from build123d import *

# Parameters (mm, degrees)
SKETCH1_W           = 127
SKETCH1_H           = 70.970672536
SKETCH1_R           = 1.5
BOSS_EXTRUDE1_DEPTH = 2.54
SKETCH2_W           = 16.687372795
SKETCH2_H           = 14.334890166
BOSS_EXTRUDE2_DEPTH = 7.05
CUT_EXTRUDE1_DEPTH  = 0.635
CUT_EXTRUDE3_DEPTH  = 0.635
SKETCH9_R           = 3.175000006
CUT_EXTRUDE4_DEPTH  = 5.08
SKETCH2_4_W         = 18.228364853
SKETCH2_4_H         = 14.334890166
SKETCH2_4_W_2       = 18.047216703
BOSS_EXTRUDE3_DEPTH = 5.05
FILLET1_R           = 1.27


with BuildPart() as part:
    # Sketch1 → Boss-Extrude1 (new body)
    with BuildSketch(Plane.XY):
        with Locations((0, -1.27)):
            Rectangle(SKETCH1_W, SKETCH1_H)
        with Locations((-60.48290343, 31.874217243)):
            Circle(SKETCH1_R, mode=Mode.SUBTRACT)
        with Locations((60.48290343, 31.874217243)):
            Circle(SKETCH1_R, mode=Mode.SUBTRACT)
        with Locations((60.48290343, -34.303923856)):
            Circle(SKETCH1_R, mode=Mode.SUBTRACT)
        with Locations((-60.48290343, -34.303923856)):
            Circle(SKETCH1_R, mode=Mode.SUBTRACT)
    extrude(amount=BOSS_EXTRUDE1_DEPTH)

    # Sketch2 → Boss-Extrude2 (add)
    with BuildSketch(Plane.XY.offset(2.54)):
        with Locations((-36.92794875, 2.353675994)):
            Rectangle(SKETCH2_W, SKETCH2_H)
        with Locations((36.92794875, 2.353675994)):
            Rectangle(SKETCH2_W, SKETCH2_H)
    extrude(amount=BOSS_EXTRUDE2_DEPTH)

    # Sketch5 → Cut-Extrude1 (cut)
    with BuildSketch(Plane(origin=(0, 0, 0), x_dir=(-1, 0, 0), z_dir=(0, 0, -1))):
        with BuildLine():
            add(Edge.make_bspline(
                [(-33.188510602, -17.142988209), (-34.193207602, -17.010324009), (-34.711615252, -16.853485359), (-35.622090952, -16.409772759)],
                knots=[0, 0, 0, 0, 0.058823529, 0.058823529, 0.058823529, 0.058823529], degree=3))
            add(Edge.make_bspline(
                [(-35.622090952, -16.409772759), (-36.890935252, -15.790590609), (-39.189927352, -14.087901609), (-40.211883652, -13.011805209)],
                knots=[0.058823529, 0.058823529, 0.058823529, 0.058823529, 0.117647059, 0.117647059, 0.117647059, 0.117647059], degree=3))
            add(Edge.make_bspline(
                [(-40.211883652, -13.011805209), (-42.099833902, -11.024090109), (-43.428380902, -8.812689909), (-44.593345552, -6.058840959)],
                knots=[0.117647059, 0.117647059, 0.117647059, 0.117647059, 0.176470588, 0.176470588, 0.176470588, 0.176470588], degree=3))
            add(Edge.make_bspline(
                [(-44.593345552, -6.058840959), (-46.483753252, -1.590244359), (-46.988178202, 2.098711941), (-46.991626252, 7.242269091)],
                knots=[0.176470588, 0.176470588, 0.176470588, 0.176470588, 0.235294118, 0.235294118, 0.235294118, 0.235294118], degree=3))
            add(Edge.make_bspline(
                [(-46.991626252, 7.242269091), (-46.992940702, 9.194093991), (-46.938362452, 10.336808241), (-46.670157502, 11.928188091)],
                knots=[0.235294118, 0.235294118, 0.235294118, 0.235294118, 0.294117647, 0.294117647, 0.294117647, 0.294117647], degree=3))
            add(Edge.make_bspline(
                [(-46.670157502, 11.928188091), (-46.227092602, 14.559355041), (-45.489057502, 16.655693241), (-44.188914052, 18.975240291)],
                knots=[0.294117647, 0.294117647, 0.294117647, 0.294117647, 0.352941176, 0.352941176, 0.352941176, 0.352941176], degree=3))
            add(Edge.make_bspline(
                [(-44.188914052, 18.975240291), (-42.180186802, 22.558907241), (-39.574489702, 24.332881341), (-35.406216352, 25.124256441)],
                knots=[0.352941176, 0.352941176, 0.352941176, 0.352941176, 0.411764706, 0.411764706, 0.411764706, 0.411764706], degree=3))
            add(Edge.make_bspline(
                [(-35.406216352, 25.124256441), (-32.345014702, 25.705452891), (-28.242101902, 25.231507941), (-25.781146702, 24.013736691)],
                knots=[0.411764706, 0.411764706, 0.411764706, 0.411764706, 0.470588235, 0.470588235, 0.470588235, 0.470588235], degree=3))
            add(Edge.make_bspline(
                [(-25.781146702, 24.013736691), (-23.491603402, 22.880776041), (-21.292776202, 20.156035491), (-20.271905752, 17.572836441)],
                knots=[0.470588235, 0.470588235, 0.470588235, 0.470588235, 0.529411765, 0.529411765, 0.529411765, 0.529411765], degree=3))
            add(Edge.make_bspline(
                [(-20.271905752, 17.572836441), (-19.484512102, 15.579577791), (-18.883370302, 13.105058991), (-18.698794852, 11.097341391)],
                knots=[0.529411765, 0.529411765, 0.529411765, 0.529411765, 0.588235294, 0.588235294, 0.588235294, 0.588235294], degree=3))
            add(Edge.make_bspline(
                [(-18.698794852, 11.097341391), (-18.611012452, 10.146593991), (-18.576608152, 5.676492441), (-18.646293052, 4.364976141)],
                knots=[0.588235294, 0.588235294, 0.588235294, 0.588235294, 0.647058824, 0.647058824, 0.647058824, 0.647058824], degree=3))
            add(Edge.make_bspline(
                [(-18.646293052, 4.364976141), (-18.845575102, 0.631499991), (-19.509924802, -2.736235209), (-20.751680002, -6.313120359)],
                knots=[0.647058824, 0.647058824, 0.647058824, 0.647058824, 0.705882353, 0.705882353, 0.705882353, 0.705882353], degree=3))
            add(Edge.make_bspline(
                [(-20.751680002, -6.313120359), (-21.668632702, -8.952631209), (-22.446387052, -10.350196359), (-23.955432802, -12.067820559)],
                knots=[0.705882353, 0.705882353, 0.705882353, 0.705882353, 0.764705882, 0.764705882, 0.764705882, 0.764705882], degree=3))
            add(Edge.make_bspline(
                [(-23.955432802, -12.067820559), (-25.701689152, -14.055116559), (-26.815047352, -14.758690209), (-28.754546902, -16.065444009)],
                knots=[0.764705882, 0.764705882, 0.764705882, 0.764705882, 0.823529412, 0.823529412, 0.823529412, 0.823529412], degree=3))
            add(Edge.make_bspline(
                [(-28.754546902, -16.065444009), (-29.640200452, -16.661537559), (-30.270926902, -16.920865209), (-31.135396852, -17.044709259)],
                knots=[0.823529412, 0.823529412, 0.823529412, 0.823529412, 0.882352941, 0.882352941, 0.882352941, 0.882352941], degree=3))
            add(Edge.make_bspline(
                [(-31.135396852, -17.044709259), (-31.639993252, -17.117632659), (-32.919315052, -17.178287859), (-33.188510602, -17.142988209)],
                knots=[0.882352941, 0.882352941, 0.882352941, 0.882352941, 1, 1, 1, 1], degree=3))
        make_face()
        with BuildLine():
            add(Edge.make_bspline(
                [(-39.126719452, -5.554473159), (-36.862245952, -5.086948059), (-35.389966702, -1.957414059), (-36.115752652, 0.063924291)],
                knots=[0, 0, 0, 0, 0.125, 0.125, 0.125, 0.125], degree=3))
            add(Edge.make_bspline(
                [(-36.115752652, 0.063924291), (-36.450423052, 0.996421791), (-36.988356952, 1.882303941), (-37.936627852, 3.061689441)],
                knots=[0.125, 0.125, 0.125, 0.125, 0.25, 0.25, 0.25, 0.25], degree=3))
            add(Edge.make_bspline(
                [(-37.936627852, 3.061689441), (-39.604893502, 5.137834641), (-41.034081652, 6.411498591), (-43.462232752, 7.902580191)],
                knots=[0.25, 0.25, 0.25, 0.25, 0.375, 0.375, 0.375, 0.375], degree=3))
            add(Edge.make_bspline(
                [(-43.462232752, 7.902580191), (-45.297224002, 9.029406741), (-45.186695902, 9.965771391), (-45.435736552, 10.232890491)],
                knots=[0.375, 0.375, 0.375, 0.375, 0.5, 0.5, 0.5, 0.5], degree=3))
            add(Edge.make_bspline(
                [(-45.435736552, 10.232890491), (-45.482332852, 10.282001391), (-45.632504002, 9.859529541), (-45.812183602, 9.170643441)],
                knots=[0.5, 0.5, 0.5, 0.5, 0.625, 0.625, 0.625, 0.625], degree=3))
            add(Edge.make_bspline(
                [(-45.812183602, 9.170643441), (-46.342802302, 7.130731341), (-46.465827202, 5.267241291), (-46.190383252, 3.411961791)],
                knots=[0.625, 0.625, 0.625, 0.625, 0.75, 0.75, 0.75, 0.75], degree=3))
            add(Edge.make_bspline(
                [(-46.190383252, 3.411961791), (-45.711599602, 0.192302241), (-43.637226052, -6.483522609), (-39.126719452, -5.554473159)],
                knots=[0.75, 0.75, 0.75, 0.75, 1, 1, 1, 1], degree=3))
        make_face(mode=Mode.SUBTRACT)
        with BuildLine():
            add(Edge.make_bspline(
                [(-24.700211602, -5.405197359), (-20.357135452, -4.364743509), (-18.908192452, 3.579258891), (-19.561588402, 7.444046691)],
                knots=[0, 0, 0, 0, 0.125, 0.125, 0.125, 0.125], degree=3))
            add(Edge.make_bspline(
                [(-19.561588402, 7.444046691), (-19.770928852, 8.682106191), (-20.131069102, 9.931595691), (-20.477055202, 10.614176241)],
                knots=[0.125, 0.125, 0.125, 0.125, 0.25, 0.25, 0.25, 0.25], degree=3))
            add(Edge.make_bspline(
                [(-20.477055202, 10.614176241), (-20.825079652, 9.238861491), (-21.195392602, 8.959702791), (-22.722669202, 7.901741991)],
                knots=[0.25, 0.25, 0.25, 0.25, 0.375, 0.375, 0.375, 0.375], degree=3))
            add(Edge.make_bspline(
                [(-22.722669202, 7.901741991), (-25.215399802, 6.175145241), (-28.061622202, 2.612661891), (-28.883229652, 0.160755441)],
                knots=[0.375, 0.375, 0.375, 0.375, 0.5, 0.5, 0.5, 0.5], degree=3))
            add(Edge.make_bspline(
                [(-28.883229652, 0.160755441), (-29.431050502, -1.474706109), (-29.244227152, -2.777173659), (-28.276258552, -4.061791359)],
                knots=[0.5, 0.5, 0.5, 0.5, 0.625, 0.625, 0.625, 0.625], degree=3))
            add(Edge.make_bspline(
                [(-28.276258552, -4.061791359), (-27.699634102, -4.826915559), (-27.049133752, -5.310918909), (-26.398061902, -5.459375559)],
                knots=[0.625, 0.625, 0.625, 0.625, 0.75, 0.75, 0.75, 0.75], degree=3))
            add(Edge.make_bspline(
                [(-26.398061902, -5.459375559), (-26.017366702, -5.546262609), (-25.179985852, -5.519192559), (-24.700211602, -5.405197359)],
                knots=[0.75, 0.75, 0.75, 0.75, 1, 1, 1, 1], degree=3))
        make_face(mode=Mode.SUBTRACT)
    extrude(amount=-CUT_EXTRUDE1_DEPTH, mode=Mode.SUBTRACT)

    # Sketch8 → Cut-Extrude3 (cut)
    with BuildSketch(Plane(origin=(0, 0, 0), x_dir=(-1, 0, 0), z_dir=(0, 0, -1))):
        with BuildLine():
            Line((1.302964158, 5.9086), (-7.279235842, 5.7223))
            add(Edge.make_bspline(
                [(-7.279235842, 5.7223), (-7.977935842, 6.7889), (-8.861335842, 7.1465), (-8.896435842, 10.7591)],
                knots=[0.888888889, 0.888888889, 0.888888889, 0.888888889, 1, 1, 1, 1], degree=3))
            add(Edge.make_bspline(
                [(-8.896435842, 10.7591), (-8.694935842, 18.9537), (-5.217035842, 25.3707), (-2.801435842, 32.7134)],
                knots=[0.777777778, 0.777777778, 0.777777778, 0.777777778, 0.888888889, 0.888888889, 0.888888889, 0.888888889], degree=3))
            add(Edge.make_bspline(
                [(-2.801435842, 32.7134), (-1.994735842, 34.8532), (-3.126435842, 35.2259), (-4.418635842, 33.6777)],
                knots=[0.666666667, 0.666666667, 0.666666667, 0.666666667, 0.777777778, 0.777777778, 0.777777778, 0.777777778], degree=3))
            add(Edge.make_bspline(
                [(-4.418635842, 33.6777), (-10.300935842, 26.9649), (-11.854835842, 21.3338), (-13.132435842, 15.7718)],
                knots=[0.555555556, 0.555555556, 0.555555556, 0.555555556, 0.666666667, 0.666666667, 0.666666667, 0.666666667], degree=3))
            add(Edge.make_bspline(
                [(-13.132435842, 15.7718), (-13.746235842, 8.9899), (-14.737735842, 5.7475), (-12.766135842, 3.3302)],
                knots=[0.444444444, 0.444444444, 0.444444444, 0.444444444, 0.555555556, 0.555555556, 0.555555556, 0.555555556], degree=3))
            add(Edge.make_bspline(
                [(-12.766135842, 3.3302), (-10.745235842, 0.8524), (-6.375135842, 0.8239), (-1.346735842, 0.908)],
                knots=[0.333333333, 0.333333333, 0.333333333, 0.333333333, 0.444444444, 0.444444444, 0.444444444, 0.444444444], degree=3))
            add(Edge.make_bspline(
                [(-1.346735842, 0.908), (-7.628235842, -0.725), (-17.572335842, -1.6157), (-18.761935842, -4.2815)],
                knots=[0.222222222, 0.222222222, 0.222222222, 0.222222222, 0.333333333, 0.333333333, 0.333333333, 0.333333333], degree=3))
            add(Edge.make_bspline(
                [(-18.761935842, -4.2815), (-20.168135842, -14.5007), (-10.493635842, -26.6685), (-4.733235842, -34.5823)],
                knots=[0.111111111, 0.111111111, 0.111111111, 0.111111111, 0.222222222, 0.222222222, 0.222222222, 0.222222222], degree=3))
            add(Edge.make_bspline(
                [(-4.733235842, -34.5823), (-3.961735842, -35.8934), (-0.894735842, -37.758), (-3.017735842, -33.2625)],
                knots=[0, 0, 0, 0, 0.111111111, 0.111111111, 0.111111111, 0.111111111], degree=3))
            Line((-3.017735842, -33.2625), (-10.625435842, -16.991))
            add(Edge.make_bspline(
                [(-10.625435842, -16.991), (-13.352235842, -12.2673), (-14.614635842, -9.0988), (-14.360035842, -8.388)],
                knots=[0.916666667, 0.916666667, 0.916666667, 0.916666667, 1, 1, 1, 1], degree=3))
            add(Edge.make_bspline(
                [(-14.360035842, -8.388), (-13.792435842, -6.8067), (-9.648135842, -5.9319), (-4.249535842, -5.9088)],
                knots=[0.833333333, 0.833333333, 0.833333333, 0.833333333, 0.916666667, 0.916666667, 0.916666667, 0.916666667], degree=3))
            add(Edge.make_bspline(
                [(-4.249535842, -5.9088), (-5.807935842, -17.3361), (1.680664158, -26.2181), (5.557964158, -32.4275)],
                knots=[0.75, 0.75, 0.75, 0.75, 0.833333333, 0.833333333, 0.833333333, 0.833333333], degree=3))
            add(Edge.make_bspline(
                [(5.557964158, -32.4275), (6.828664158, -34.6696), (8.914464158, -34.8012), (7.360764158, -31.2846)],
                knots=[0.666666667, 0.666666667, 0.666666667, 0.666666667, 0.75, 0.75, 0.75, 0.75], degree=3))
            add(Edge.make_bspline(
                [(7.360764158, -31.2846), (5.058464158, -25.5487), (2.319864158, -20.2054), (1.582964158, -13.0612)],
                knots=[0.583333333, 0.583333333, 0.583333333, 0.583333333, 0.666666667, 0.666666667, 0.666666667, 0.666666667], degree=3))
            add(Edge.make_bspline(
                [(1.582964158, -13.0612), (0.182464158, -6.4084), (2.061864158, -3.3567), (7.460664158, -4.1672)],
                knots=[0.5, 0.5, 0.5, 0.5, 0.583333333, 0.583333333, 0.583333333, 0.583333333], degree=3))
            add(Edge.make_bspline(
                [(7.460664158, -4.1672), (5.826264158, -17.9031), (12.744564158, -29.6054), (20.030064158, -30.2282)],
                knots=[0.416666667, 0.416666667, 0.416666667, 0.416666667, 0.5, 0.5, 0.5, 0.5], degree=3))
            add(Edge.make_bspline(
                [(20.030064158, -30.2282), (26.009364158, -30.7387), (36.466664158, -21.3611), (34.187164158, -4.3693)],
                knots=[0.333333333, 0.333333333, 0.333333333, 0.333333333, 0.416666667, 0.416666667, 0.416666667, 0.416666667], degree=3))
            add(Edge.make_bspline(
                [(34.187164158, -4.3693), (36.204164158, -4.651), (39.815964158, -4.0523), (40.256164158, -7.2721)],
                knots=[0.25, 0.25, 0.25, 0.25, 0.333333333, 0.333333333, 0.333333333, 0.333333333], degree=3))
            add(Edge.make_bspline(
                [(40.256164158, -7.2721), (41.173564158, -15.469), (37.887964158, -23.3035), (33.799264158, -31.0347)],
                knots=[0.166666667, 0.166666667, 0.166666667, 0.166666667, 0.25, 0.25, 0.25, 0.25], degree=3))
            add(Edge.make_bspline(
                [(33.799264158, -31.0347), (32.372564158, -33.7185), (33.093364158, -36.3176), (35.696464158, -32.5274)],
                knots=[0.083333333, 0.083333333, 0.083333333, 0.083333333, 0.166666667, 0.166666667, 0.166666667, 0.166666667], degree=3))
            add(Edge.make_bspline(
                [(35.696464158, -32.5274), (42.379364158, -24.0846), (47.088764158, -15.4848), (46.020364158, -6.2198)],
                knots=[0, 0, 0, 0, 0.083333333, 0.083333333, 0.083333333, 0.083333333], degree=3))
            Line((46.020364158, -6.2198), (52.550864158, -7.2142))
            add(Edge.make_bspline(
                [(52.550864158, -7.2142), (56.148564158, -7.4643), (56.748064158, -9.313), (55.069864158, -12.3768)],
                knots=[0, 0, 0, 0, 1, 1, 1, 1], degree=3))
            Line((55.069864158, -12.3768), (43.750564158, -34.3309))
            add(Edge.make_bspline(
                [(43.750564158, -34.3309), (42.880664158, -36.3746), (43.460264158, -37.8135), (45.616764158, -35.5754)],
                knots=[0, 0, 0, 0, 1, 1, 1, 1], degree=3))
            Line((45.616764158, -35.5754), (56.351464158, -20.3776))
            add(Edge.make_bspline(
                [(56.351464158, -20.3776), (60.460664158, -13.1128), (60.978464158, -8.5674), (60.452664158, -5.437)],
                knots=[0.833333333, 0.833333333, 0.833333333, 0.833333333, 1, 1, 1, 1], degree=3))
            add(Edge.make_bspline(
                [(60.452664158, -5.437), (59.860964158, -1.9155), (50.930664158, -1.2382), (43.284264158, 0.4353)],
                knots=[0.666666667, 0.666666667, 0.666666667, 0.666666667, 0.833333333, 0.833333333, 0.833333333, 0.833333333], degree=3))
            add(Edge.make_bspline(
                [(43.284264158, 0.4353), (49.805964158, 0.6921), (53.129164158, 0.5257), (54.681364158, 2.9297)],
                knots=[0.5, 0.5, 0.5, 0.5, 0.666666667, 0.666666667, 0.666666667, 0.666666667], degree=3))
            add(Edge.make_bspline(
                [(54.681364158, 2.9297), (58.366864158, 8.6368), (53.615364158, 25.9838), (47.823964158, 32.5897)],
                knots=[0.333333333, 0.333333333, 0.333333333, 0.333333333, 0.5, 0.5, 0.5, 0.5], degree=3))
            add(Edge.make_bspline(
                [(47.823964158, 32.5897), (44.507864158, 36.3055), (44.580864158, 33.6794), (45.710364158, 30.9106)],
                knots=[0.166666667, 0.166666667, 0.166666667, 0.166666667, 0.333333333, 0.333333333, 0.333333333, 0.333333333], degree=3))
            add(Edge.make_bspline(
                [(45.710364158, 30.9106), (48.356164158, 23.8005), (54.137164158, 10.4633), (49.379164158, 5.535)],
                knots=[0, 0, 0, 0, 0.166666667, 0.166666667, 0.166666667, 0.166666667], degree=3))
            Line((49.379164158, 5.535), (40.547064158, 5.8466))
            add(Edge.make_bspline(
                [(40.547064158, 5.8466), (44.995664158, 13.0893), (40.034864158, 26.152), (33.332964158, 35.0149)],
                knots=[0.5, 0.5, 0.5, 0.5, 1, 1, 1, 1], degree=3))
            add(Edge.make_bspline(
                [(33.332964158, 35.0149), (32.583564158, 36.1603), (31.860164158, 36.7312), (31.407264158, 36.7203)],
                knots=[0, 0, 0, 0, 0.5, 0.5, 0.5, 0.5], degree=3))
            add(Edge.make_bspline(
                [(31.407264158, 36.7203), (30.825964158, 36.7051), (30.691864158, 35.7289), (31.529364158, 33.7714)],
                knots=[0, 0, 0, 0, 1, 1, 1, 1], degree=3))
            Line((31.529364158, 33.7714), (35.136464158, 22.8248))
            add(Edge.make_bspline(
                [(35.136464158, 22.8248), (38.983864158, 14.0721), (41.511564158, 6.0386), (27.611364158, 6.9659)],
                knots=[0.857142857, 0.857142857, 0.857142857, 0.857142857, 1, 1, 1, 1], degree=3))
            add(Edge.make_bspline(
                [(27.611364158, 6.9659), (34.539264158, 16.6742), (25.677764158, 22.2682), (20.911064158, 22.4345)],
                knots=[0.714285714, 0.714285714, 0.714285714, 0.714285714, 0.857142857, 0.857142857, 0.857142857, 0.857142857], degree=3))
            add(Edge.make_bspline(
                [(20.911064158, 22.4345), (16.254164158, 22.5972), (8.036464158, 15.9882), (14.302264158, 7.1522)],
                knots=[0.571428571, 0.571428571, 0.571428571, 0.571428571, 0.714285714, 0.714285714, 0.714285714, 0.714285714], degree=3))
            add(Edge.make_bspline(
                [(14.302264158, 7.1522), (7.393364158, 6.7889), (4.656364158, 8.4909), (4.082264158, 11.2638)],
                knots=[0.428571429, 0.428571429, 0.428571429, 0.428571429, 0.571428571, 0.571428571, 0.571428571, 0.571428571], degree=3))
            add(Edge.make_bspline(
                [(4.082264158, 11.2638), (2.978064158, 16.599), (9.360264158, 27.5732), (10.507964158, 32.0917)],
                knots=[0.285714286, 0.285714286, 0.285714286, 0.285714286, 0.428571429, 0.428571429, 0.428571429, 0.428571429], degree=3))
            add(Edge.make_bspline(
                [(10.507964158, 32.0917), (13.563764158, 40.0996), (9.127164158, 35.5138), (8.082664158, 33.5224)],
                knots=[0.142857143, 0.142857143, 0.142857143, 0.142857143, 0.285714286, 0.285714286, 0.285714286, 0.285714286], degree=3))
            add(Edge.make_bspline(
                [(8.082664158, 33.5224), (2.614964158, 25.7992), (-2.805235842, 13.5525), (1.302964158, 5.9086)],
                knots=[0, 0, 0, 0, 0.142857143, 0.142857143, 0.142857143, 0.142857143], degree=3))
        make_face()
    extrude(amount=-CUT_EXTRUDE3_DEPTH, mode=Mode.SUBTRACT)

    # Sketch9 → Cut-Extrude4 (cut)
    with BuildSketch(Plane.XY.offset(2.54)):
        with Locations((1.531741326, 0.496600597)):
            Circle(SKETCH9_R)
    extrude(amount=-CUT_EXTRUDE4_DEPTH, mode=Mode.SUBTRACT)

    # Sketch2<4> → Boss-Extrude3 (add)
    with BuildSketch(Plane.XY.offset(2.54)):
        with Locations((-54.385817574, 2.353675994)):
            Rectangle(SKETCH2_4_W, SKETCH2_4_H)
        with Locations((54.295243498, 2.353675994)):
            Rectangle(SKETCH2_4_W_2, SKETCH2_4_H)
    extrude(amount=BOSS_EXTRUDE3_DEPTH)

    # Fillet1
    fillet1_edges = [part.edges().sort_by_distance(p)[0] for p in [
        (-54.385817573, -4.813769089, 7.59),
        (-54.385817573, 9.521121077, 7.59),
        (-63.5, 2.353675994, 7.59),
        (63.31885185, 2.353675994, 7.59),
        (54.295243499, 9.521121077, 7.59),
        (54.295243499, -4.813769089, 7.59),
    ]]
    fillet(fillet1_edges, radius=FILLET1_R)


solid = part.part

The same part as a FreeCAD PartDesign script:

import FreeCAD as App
import Part
import Sketcher
from FreeCAD import Vector
Q = App.Units.Quantity


def edges_at(feature, points):
    """Names of the edges that pass closest to the given points."""
    edges = feature.Shape.Edges
    near = lambda p: min(range(len(edges)), key=lambda i: edges[i].distToShape(Part.Vertex(*p))[0])
    return sorted({f"Edge{near(p) + 1}" for p in points})


def add_polygon(sketch, points):
    """Adds a closed chain of lines whose ends are joined by coincident constraints."""
    first, n = sketch.GeometryCount, len(points)
    for a, b in zip(points, points[1:] + points[:1]):
        sketch.addGeometry(Part.LineSegment(App.Vector(*a, 0), App.Vector(*b, 0)), False)
    for i in range(n):
        sketch.addConstraint(Sketcher.Constraint("Coincident", first + i, 2, first + (i + 1) % n, 1))

doc = App.newDocument("Part")
body = doc.addObject("PartDesign::Body", "Body")

# Sketch on XY plane
sketch1 = body.newObject("Sketcher::SketchObject", "Sketch")
sketch1.AttachmentSupport = (doc.getObject("XY_Plane"), [""])
sketch1.MapMode = "FlatFace"
add_polygon(sketch1, [(-63.5, 34.215336), (-63.5, -36.755336), (63.5, -36.755336), (63.5, 34.215336)])  # lines 0-3
sketch1.addGeometry(Part.Circle(Vector(-60.482903, -34.303924, 0), Vector(0, 0, 1), 1.5), False)  # 4
sketch1.addGeometry(Part.Circle(Vector(60.482903, -34.303924, 0), Vector(0, 0, 1), 1.5), False)  # 5
sketch1.addGeometry(Part.Circle(Vector(-60.482903, 31.874217, 0), Vector(0, 0, 1), 1.5), False)  # 6
sketch1.addGeometry(Part.Circle(Vector(60.482903, 31.874217, 0), Vector(0, 0, 1), 1.5), False)  # 7
sketch1.addConstraint(Sketcher.Constraint("Vertical", 0))
sketch1.addConstraint(Sketcher.Constraint("Horizontal", 1))
sketch1.addConstraint(Sketcher.Constraint("Vertical", 2))
sketch1.addConstraint(Sketcher.Constraint("Horizontal", 3))
sketch1.addConstraint(Sketcher.Constraint("Equal", 4, 5))
sketch1.addConstraint(Sketcher.Constraint("Equal", 5, 6))
sketch1.addConstraint(Sketcher.Constraint("Equal", 6, 7))
sketch1.addConstraint(Sketcher.Constraint("Symmetric", 4, 3, 5, 3, -2))
sketch1.addConstraint(Sketcher.Constraint("Symmetric", 6, 3, 7, 3, -2))
sketch1.addConstraint(Sketcher.Constraint("Vertical", 4, 3, 6, 3))
sketch1.addConstraint(Sketcher.Constraint("DistanceX", 1, 1, 1, 2, Q("5 in")))
sketch1.addConstraint(Sketcher.Constraint("DistanceX", 0, 2, -1, 1, Q("2.5 in")))
sketch1.addConstraint(Sketcher.Constraint("Diameter", 4, Q("3 mm")))
sketch1.addConstraint(Sketcher.Constraint("DistanceY", 0, 2, 0, 1, Q("70.970673 mm")))
sketch1.addConstraint(Sketcher.Constraint("DistanceY", 4, 3, 6, 3, Q("66.178141 mm")))
sketch1.addConstraint(Sketcher.Constraint("DistanceY", 7, 3, 2, 2, Q("2.341119 mm")))
sketch1.addConstraint(Sketcher.Constraint("DistanceX", 4, 3, -1, 1, Q("60.482903 mm")))
sketch1.addConstraint(Sketcher.Constraint("DistanceY", 4, 3, -1, 1, Q("34.303924 mm")))
pad1 = body.newObject("PartDesign::Pad", "Pad")
pad1.Profile = sketch1
pad1.Length = Q("0.1 in")

# Sketch on XY plane
sketch2 = body.newObject("Sketcher::SketchObject", "Sketch001")
sketch2.AttachmentSupport = (doc.getObject("XY_Plane"), [""])
sketch2.MapMode = "FlatFace"
sketch2.AttachmentOffset = App.Placement(Vector(0, 0, 0.1 * 25.4), App.Rotation())
add_polygon(sketch2, [(-45.271635, 9.521121), (-45.271635, -4.813769), (-28.584262, -4.813769), (-28.584262, 9.521121)])  # lines 0-3
add_polygon(sketch2, [(28.584262, 9.521121), (28.584262, -4.813769), (45.271635, -4.813769), (45.271635, 9.521121)])  # lines 4-7
sketch2.addConstraint(Sketcher.Constraint("Vertical", 0))
sketch2.addConstraint(Sketcher.Constraint("Horizontal", 1))
sketch2.addConstraint(Sketcher.Constraint("Vertical", 2))
sketch2.addConstraint(Sketcher.Constraint("Horizontal", 3))
sketch2.addConstraint(Sketcher.Constraint("Vertical", 4))
sketch2.addConstraint(Sketcher.Constraint("Horizontal", 5))
sketch2.addConstraint(Sketcher.Constraint("Vertical", 6))
sketch2.addConstraint(Sketcher.Constraint("Horizontal", 7))
sketch2.addConstraint(Sketcher.Constraint("Symmetric", 1, 2, 4, 2, -2))
sketch2.addConstraint(Sketcher.Constraint("Symmetric", 3, 2, 6, 2, -2))
sketch2.addConstraint(Sketcher.Constraint("DistanceY", 0, 2, 0, 1, Q("14.33489 mm")))
sketch2.addConstraint(Sketcher.Constraint("DistanceX", 1, 1, 1, 2, Q("16.687373 mm")))
sketch2.addConstraint(Sketcher.Constraint("DistanceY", 0, 2, -1, 1, Q("4.813769 mm")))
sketch2.addConstraint(Sketcher.Constraint("DistanceX", 0, 2, 5, 2, Q("90.54327 mm")))
pad2 = body.newObject("PartDesign::Pad", "Pad001")
pad2.Profile = sketch2
pad2.Length = 7.05

# Sketch on XY plane
sketch3 = body.newObject("Sketcher::SketchObject", "Sketch002")
sketch3.AttachmentSupport = (doc.getObject("XY_Plane"), [""])
sketch3.MapMode = "FlatFace"
sketch3.addGeometry(Part.BSplineCurve([Vector(33.188511, -17.142988, 0), Vector(34.193208, -17.010324, 0), Vector(34.711615, -16.853485, 0), Vector(35.622091, -16.409773, 0)], [4, 4], [0, 0.058823529], False, 3, [1, 1, 1, 1], False), False)
sketch3.addGeometry(Part.BSplineCurve([Vector(31.135397, -17.044709, 0), Vector(31.639993, -17.117633, 0), Vector(32.919315, -17.178288, 0), Vector(33.188511, -17.142988, 0)], [4, 4], [0.882352941, 1], False, 3, [1, 1, 1, 1], False), False)
sketch3.addGeometry(Part.BSplineCurve([Vector(28.754547, -16.065444, 0), Vector(29.6402, -16.661538, 0), Vector(30.270927, -16.920865, 0), Vector(31.135397, -17.044709, 0)], [4, 4], [0.823529412, 0.882352941], False, 3, [1, 1, 1, 1], False), False)
sketch3.addGeometry(Part.BSplineCurve([Vector(23.955433, -12.067821, 0), Vector(25.701689, -14.055117, 0), Vector(26.815047, -14.75869, 0), Vector(28.754547, -16.065444, 0)], [4, 4], [0.764705882, 0.823529412], False, 3, [1, 1, 1, 1], False), False)
sketch3.addGeometry(Part.BSplineCurve([Vector(20.75168, -6.31312, 0), Vector(21.668633, -8.952631, 0), Vector(22.446387, -10.350196, 0), Vector(23.955433, -12.067821, 0)], [4, 4], [0.705882353, 0.764705882], False, 3, [1, 1, 1, 1], False), False)
sketch3.addGeometry(Part.BSplineCurve([Vector(18.646293, 4.364976, 0), Vector(18.845575, 0.6315, 0), Vector(19.509925, -2.736235, 0), Vector(20.75168, -6.31312, 0)], [4, 4], [0.647058824, 0.705882353], False, 3, [1, 1, 1, 1], False), False)
sketch3.addGeometry(Part.BSplineCurve([Vector(18.698795, 11.097341, 0), Vector(18.611012, 10.146594, 0), Vector(18.576608, 5.676492, 0), Vector(18.646293, 4.364976, 0)], [4, 4], [0.588235294, 0.647058824], False, 3, [1, 1, 1, 1], False), False)
sketch3.addGeometry(Part.BSplineCurve([Vector(20.271906, 17.572836, 0), Vector(19.484512, 15.579578, 0), Vector(18.88337, 13.105059, 0), Vector(18.698795, 11.097341, 0)], [4, 4], [0.529411765, 0.588235294], False, 3, [1, 1, 1, 1], False), False)
sketch3.addGeometry(Part.BSplineCurve([Vector(25.781147, 24.013737, 0), Vector(23.491603, 22.880776, 0), Vector(21.292776, 20.156035, 0), Vector(20.271906, 17.572836, 0)], [4, 4], [0.470588235, 0.529411765], False, 3, [1, 1, 1, 1], False), False)
sketch3.addGeometry(Part.BSplineCurve([Vector(35.406216, 25.124256, 0), Vector(32.345015, 25.705453, 0), Vector(28.242102, 25.231508, 0), Vector(25.781147, 24.013737, 0)], [4, 4], [0.411764706, 0.470588235], False, 3, [1, 1, 1, 1], False), False)
sketch3.addGeometry(Part.BSplineCurve([Vector(44.188914, 18.97524, 0), Vector(42.180187, 22.558907, 0), Vector(39.57449, 24.332881, 0), Vector(35.406216, 25.124256, 0)], [4, 4], [0.352941176, 0.411764706], False, 3, [1, 1, 1, 1], False), False)
sketch3.addGeometry(Part.BSplineCurve([Vector(46.670158, 11.928188, 0), Vector(46.227093, 14.559355, 0), Vector(45.489058, 16.655693, 0), Vector(44.188914, 18.97524, 0)], [4, 4], [0.294117647, 0.352941176], False, 3, [1, 1, 1, 1], False), False)
sketch3.addGeometry(Part.BSplineCurve([Vector(46.991626, 7.242269, 0), Vector(46.992941, 9.194094, 0), Vector(46.938362, 10.336808, 0), Vector(46.670158, 11.928188, 0)], [4, 4], [0.235294118, 0.294117647], False, 3, [1, 1, 1, 1], False), False)
sketch3.addGeometry(Part.BSplineCurve([Vector(44.593346, -6.058841, 0), Vector(46.483753, -1.590244, 0), Vector(46.988178, 2.098712, 0), Vector(46.991626, 7.242269, 0)], [4, 4], [0.176470588, 0.235294118], False, 3, [1, 1, 1, 1], False), False)
sketch3.addGeometry(Part.BSplineCurve([Vector(40.211884, -13.011805, 0), Vector(42.099834, -11.02409, 0), Vector(43.428381, -8.81269, 0), Vector(44.593346, -6.058841, 0)], [4, 4], [0.117647059, 0.176470588], False, 3, [1, 1, 1, 1], False), False)
sketch3.addGeometry(Part.BSplineCurve([Vector(35.622091, -16.409773, 0), Vector(36.890935, -15.790591, 0), Vector(39.189927, -14.087902, 0), Vector(40.211884, -13.011805, 0)], [4, 4], [0.058823529, 0.117647059], False, 3, [1, 1, 1, 1], False), False)
sketch3.addGeometry(Part.BSplineCurve([Vector(46.190383, 3.411962, 0), Vector(45.7116, 0.192302, 0), Vector(43.637226, -6.483523, 0), Vector(39.126719, -5.554473, 0)], [4, 4], [0.75, 1], False, 3, [1, 1, 1, 1], False), False)
sketch3.addGeometry(Part.BSplineCurve([Vector(45.812184, 9.170643, 0), Vector(46.342802, 7.130731, 0), Vector(46.465827, 5.267241, 0), Vector(46.190383, 3.411962, 0)], [4, 4], [0.625, 0.75], False, 3, [1, 1, 1, 1], False), False)
sketch3.addGeometry(Part.BSplineCurve([Vector(45.435737, 10.23289, 0), Vector(45.482333, 10.282001, 0), Vector(45.632504, 9.85953, 0), Vector(45.812184, 9.170643, 0)], [4, 4], [0.5, 0.625], False, 3, [1, 1, 1, 1], False), False)
sketch3.addGeometry(Part.BSplineCurve([Vector(43.462233, 7.90258, 0), Vector(45.297224, 9.029407, 0), Vector(45.186696, 9.965771, 0), Vector(45.435737, 10.23289, 0)], [4, 4], [0.375, 0.5], False, 3, [1, 1, 1, 1], False), False)
sketch3.addGeometry(Part.BSplineCurve([Vector(37.936628, 3.061689, 0), Vector(39.604894, 5.137835, 0), Vector(41.034082, 6.411499, 0), Vector(43.462233, 7.90258, 0)], [4, 4], [0.25, 0.375], False, 3, [1, 1, 1, 1], False), False)
sketch3.addGeometry(Part.BSplineCurve([Vector(36.115753, 0.063924, 0), Vector(36.450423, 0.996422, 0), Vector(36.988357, 1.882304, 0), Vector(37.936628, 3.061689, 0)], [4, 4], [0.125, 0.25], False, 3, [1, 1, 1, 1], False), False)
sketch3.addGeometry(Part.BSplineCurve([Vector(39.126719, -5.554473, 0), Vector(36.862246, -5.086948, 0), Vector(35.389967, -1.957414, 0), Vector(36.115753, 0.063924, 0)], [4, 4], [0, 0.125], False, 3, [1, 1, 1, 1], False), False)
sketch3.addGeometry(Part.BSplineCurve([Vector(26.398062, -5.459376, 0), Vector(26.017367, -5.546263, 0), Vector(25.179986, -5.519193, 0), Vector(24.700212, -5.405197, 0)], [4, 4], [0.75, 1], False, 3, [1, 1, 1, 1], False), False)
sketch3.addGeometry(Part.BSplineCurve([Vector(28.276259, -4.061791, 0), Vector(27.699634, -4.826916, 0), Vector(27.049134, -5.310919, 0), Vector(26.398062, -5.459376, 0)], [4, 4], [0.625, 0.75], False, 3, [1, 1, 1, 1], False), False)
sketch3.addGeometry(Part.BSplineCurve([Vector(28.88323, 0.160755, 0), Vector(29.431051, -1.474706, 0), Vector(29.244227, -2.777174, 0), Vector(28.276259, -4.061791, 0)], [4, 4], [0.5, 0.625], False, 3, [1, 1, 1, 1], False), False)
sketch3.addGeometry(Part.BSplineCurve([Vector(22.722669, 7.901742, 0), Vector(25.2154, 6.175145, 0), Vector(28.061622, 2.612662, 0), Vector(28.88323, 0.160755, 0)], [4, 4], [0.375, 0.5], False, 3, [1, 1, 1, 1], False), False)
sketch3.addGeometry(Part.BSplineCurve([Vector(20.477055, 10.614176, 0), Vector(20.82508, 9.238861, 0), Vector(21.195393, 8.959703, 0), Vector(22.722669, 7.901742, 0)], [4, 4], [0.25, 0.375], False, 3, [1, 1, 1, 1], False), False)
sketch3.addGeometry(Part.BSplineCurve([Vector(19.561588, 7.444047, 0), Vector(19.770929, 8.682106, 0), Vector(20.131069, 9.931596, 0), Vector(20.477055, 10.614176, 0)], [4, 4], [0.125, 0.25], False, 3, [1, 1, 1, 1], False), False)
sketch3.addGeometry(Part.BSplineCurve([Vector(24.700212, -5.405197, 0), Vector(20.357135, -4.364744, 0), Vector(18.908192, 3.579259, 0), Vector(19.561588, 7.444047, 0)], [4, 4], [0, 0.125], False, 3, [1, 1, 1, 1], False), False)
sketch3.addConstraint(Sketcher.Constraint("Block", 0))
sketch3.addConstraint(Sketcher.Constraint("Block", 1))
sketch3.addConstraint(Sketcher.Constraint("Block", 2))
sketch3.addConstraint(Sketcher.Constraint("Block", 3))
sketch3.addConstraint(Sketcher.Constraint("Block", 4))
sketch3.addConstraint(Sketcher.Constraint("Block", 5))
sketch3.addConstraint(Sketcher.Constraint("Block", 6))
sketch3.addConstraint(Sketcher.Constraint("Block", 7))
sketch3.addConstraint(Sketcher.Constraint("Block", 8))
sketch3.addConstraint(Sketcher.Constraint("Block", 9))
sketch3.addConstraint(Sketcher.Constraint("Block", 10))
sketch3.addConstraint(Sketcher.Constraint("Block", 11))
sketch3.addConstraint(Sketcher.Constraint("Block", 12))
sketch3.addConstraint(Sketcher.Constraint("Block", 13))
sketch3.addConstraint(Sketcher.Constraint("Block", 14))
sketch3.addConstraint(Sketcher.Constraint("Block", 15))
sketch3.addConstraint(Sketcher.Constraint("Block", 16))
sketch3.addConstraint(Sketcher.Constraint("Block", 17))
sketch3.addConstraint(Sketcher.Constraint("Block", 18))
sketch3.addConstraint(Sketcher.Constraint("Block", 19))
sketch3.addConstraint(Sketcher.Constraint("Block", 20))
sketch3.addConstraint(Sketcher.Constraint("Block", 21))
sketch3.addConstraint(Sketcher.Constraint("Block", 22))
sketch3.addConstraint(Sketcher.Constraint("Block", 23))
sketch3.addConstraint(Sketcher.Constraint("Block", 24))
sketch3.addConstraint(Sketcher.Constraint("Block", 25))
sketch3.addConstraint(Sketcher.Constraint("Block", 26))
sketch3.addConstraint(Sketcher.Constraint("Block", 27))
sketch3.addConstraint(Sketcher.Constraint("Block", 28))
sketch3.addConstraint(Sketcher.Constraint("Block", 29))
pocket1 = body.newObject("PartDesign::Pocket", "Pocket")
pocket1.Profile = sketch3
pocket1.Length = Q("0.025 in")
pocket1.Reversed = True

# Sketch on XY plane
sketch4 = body.newObject("Sketcher::SketchObject", "Sketch003")
sketch4.AttachmentSupport = (doc.getObject("XY_Plane"), [""])
sketch4.MapMode = "FlatFace"
sketch4.addGeometry(Part.LineSegment(Vector(-1.302964, 5.9086, 0), Vector(7.279236, 5.7223, 0)), False)
sketch4.addGeometry(Part.BSplineCurve([Vector(7.279236, 5.7223, 0), Vector(7.977936, 6.7889, 0), Vector(8.861336, 7.1465, 0), Vector(8.896436, 10.7591, 0)], [4, 4], [0.888888889, 1], False, 3, [1, 1, 1, 1], False), False)
sketch4.addGeometry(Part.BSplineCurve([Vector(8.896436, 10.7591, 0), Vector(8.694936, 18.9537, 0), Vector(5.217036, 25.3707, 0), Vector(2.801436, 32.7134, 0)], [4, 4], [0.777777778, 0.888888889], False, 3, [1, 1, 1, 1], False), False)
sketch4.addGeometry(Part.BSplineCurve([Vector(2.801436, 32.7134, 0), Vector(1.994736, 34.8532, 0), Vector(3.126436, 35.2259, 0), Vector(4.418636, 33.6777, 0)], [4, 4], [0.666666667, 0.777777778], False, 3, [1, 1, 1, 1], False), False)
sketch4.addGeometry(Part.BSplineCurve([Vector(4.418636, 33.6777, 0), Vector(10.300936, 26.9649, 0), Vector(11.854836, 21.3338, 0), Vector(13.132436, 15.7718, 0)], [4, 4], [0.555555556, 0.666666667], False, 3, [1, 1, 1, 1], False), False)
sketch4.addGeometry(Part.BSplineCurve([Vector(13.132436, 15.7718, 0), Vector(13.746236, 8.9899, 0), Vector(14.737736, 5.7475, 0), Vector(12.766136, 3.3302, 0)], [4, 4], [0.444444444, 0.555555556], False, 3, [1, 1, 1, 1], False), False)
sketch4.addGeometry(Part.BSplineCurve([Vector(12.766136, 3.3302, 0), Vector(10.745236, 0.8524, 0), Vector(6.375136, 0.8239, 0), Vector(1.346736, 0.908, 0)], [4, 4], [0.333333333, 0.444444444], False, 3, [1, 1, 1, 1], False), False)
sketch4.addGeometry(Part.BSplineCurve([Vector(1.346736, 0.908, 0), Vector(7.628236, -0.725, 0), Vector(17.572336, -1.6157, 0), Vector(18.761936, -4.2815, 0)], [4, 4], [0.222222222, 0.333333333], False, 3, [1, 1, 1, 1], False), False)
sketch4.addGeometry(Part.BSplineCurve([Vector(18.761936, -4.2815, 0), Vector(20.168136, -14.5007, 0), Vector(10.493636, -26.6685, 0), Vector(4.733236, -34.5823, 0)], [4, 4], [0.111111111, 0.222222222], False, 3, [1, 1, 1, 1], False), False)
sketch4.addGeometry(Part.BSplineCurve([Vector(4.733236, -34.5823, 0), Vector(3.961736, -35.8934, 0), Vector(0.894736, -37.758, 0), Vector(3.017736, -33.2625, 0)], [4, 4], [0, 0.111111111], False, 3, [1, 1, 1, 1], False), False)
sketch4.addGeometry(Part.LineSegment(Vector(3.017736, -33.2625, 0), Vector(10.625436, -16.991, 0)), False)
sketch4.addGeometry(Part.BSplineCurve([Vector(10.625436, -16.991, 0), Vector(13.352236, -12.2673, 0), Vector(14.614636, -9.0988, 0), Vector(14.360036, -8.388, 0)], [4, 4], [0.916666667, 1], False, 3, [1, 1, 1, 1], False), False)
sketch4.addGeometry(Part.BSplineCurve([Vector(14.360036, -8.388, 0), Vector(13.792436, -6.8067, 0), Vector(9.648136, -5.9319, 0), Vector(4.249536, -5.9088, 0)], [4, 4], [0.833333333, 0.916666667], False, 3, [1, 1, 1, 1], False), False)
sketch4.addGeometry(Part.BSplineCurve([Vector(4.249536, -5.9088, 0), Vector(5.807936, -17.3361, 0), Vector(-1.680664, -26.2181, 0), Vector(-5.557964, -32.4275, 0)], [4, 4], [0.75, 0.833333333], False, 3, [1, 1, 1, 1], False), False)
sketch4.addGeometry(Part.BSplineCurve([Vector(-5.557964, -32.4275, 0), Vector(-6.828664, -34.6696, 0), Vector(-8.914464, -34.8012, 0), Vector(-7.360764, -31.2846, 0)], [4, 4], [0.666666667, 0.75], False, 3, [1, 1, 1, 1], False), False)
sketch4.addGeometry(Part.BSplineCurve([Vector(-7.360764, -31.2846, 0), Vector(-5.058464, -25.5487, 0), Vector(-2.319864, -20.2054, 0), Vector(-1.582964, -13.0612, 0)], [4, 4], [0.583333333, 0.666666667], False, 3, [1, 1, 1, 1], False), False)
sketch4.addGeometry(Part.BSplineCurve([Vector(-1.582964, -13.0612, 0), Vector(-0.182464, -6.4084, 0), Vector(-2.061864, -3.3567, 0), Vector(-7.460664, -4.1672, 0)], [4, 4], [0.5, 0.583333333], False, 3, [1, 1, 1, 1], False), False)
sketch4.addGeometry(Part.BSplineCurve([Vector(-7.460664, -4.1672, 0), Vector(-5.826264, -17.9031, 0), Vector(-12.744564, -29.6054, 0), Vector(-20.030064, -30.2282, 0)], [4, 4], [0.416666667, 0.5], False, 3, [1, 1, 1, 1], False), False)
sketch4.addGeometry(Part.BSplineCurve([Vector(-20.030064, -30.2282, 0), Vector(-26.009364, -30.7387, 0), Vector(-36.466664, -21.3611, 0), Vector(-34.187164, -4.3693, 0)], [4, 4], [0.333333333, 0.416666667], False, 3, [1, 1, 1, 1], False), False)
sketch4.addGeometry(Part.BSplineCurve([Vector(-34.187164, -4.3693, 0), Vector(-36.204164, -4.651, 0), Vector(-39.815964, -4.0523, 0), Vector(-40.256164, -7.2721, 0)], [4, 4], [0.25, 0.333333333], False, 3, [1, 1, 1, 1], False), False)
sketch4.addGeometry(Part.BSplineCurve([Vector(-40.256164, -7.2721, 0), Vector(-41.173564, -15.469, 0), Vector(-37.887964, -23.3035, 0), Vector(-33.799264, -31.0347, 0)], [4, 4], [0.166666667, 0.25], False, 3, [1, 1, 1, 1], False), False)
sketch4.addGeometry(Part.BSplineCurve([Vector(-33.799264, -31.0347, 0), Vector(-32.372564, -33.7185, 0), Vector(-33.093364, -36.3176, 0), Vector(-35.696464, -32.5274, 0)], [4, 4], [0.083333333, 0.166666667], False, 3, [1, 1, 1, 1], False), False)
sketch4.addGeometry(Part.BSplineCurve([Vector(-35.696464, -32.5274, 0), Vector(-42.379364, -24.0846, 0), Vector(-47.088764, -15.4848, 0), Vector(-46.020364, -6.2198, 0)], [4, 4], [0, 0.083333333], False, 3, [1, 1, 1, 1], False), False)
sketch4.addGeometry(Part.LineSegment(Vector(-46.020364, -6.2198, 0), Vector(-52.550864, -7.2142, 0)), False)
sketch4.addGeometry(Part.BSplineCurve([Vector(-52.550864, -7.2142, 0), Vector(-56.148564, -7.4643, 0), Vector(-56.748064, -9.313, 0), Vector(-55.069864, -12.3768, 0)], [4, 4], [0, 1], False, 3, [1, 1, 1, 1], False), False)
sketch4.addGeometry(Part.LineSegment(Vector(-55.069864, -12.3768, 0), Vector(-43.750564, -34.3309, 0)), False)
sketch4.addGeometry(Part.BSplineCurve([Vector(-43.750564, -34.3309, 0), Vector(-42.880664, -36.3746, 0), Vector(-43.460264, -37.8135, 0), Vector(-45.616764, -35.5754, 0)], [4, 4], [0, 1], False, 3, [1, 1, 1, 1], False), False)
sketch4.addGeometry(Part.LineSegment(Vector(-45.616764, -35.5754, 0), Vector(-56.351464, -20.3776, 0)), False)
sketch4.addGeometry(Part.BSplineCurve([Vector(-56.351464, -20.3776, 0), Vector(-60.460664, -13.1128, 0), Vector(-60.978464, -8.5674, 0), Vector(-60.452664, -5.437, 0)], [4, 4], [0.833333333, 1], False, 3, [1, 1, 1, 1], False), False)
sketch4.addGeometry(Part.BSplineCurve([Vector(-60.452664, -5.437, 0), Vector(-59.860964, -1.9155, 0), Vector(-50.930664, -1.2382, 0), Vector(-43.284264, 0.4353, 0)], [4, 4], [0.666666667, 0.833333333], False, 3, [1, 1, 1, 1], False), False)
sketch4.addGeometry(Part.BSplineCurve([Vector(-43.284264, 0.4353, 0), Vector(-49.805964, 0.6921, 0), Vector(-53.129164, 0.5257, 0), Vector(-54.681364, 2.9297, 0)], [4, 4], [0.5, 0.666666667], False, 3, [1, 1, 1, 1], False), False)
sketch4.addGeometry(Part.BSplineCurve([Vector(-54.681364, 2.9297, 0), Vector(-58.366864, 8.6368, 0), Vector(-53.615364, 25.9838, 0), Vector(-47.823964, 32.5897, 0)], [4, 4], [0.333333333, 0.5], False, 3, [1, 1, 1, 1], False), False)
sketch4.addGeometry(Part.BSplineCurve([Vector(-47.823964, 32.5897, 0), Vector(-44.507864, 36.3055, 0), Vector(-44.580864, 33.6794, 0), Vector(-45.710364, 30.9106, 0)], [4, 4], [0.166666667, 0.333333333], False, 3, [1, 1, 1, 1], False), False)
sketch4.addGeometry(Part.BSplineCurve([Vector(-45.710364, 30.9106, 0), Vector(-48.356164, 23.8005, 0), Vector(-54.137164, 10.4633, 0), Vector(-49.379164, 5.535, 0)], [4, 4], [0, 0.166666667], False, 3, [1, 1, 1, 1], False), False)
sketch4.addGeometry(Part.LineSegment(Vector(-49.379164, 5.535, 0), Vector(-40.547064, 5.8466, 0)), False)
sketch4.addGeometry(Part.BSplineCurve([Vector(-40.547064, 5.8466, 0), Vector(-44.995664, 13.0893, 0), Vector(-40.034864, 26.152, 0), Vector(-33.332964, 35.0149, 0)], [4, 4], [0.5, 1], False, 3, [1, 1, 1, 1], False), False)
sketch4.addGeometry(Part.BSplineCurve([Vector(-33.332964, 35.0149, 0), Vector(-32.583564, 36.1603, 0), Vector(-31.860164, 36.7312, 0), Vector(-31.407264, 36.7203, 0)], [4, 4], [0, 0.5], False, 3, [1, 1, 1, 1], False), False)
sketch4.addGeometry(Part.BSplineCurve([Vector(-31.407264, 36.7203, 0), Vector(-30.825964, 36.7051, 0), Vector(-30.691864, 35.7289, 0), Vector(-31.529364, 33.7714, 0)], [4, 4], [0, 1], False, 3, [1, 1, 1, 1], False), False)
sketch4.addGeometry(Part.LineSegment(Vector(-31.529364, 33.7714, 0), Vector(-35.136464, 22.8248, 0)), False)
sketch4.addGeometry(Part.BSplineCurve([Vector(-35.136464, 22.8248, 0), Vector(-38.983864, 14.0721, 0), Vector(-41.511564, 6.0386, 0), Vector(-27.611364, 6.9659, 0)], [4, 4], [0.857142857, 1], False, 3, [1, 1, 1, 1], False), False)
sketch4.addGeometry(Part.BSplineCurve([Vector(-27.611364, 6.9659, 0), Vector(-34.539264, 16.6742, 0), Vector(-25.677764, 22.2682, 0), Vector(-20.911064, 22.4345, 0)], [4, 4], [0.714285714, 0.857142857], False, 3, [1, 1, 1, 1], False), False)
sketch4.addGeometry(Part.BSplineCurve([Vector(-20.911064, 22.4345, 0), Vector(-16.254164, 22.5972, 0), Vector(-8.036464, 15.9882, 0), Vector(-14.302264, 7.1522, 0)], [4, 4], [0.571428571, 0.714285714], False, 3, [1, 1, 1, 1], False), False)
sketch4.addGeometry(Part.BSplineCurve([Vector(-14.302264, 7.1522, 0), Vector(-7.393364, 6.7889, 0), Vector(-4.656364, 8.4909, 0), Vector(-4.082264, 11.2638, 0)], [4, 4], [0.428571429, 0.571428571], False, 3, [1, 1, 1, 1], False), False)
sketch4.addGeometry(Part.BSplineCurve([Vector(-4.082264, 11.2638, 0), Vector(-2.978064, 16.599, 0), Vector(-9.360264, 27.5732, 0), Vector(-10.507964, 32.0917, 0)], [4, 4], [0.285714286, 0.428571429], False, 3, [1, 1, 1, 1], False), False)
sketch4.addGeometry(Part.BSplineCurve([Vector(-10.507964, 32.0917, 0), Vector(-13.563764, 40.0996, 0), Vector(-9.127164, 35.5138, 0), Vector(-8.082664, 33.5224, 0)], [4, 4], [0.142857143, 0.285714286], False, 3, [1, 1, 1, 1], False), False)
sketch4.addGeometry(Part.BSplineCurve([Vector(-8.082664, 33.5224, 0), Vector(-2.614964, 25.7992, 0), Vector(2.805236, 13.5525, 0), Vector(-1.302964, 5.9086, 0)], [4, 4], [0, 0.142857143], False, 3, [1, 1, 1, 1], False), False)
sketch4.addConstraint(Sketcher.Constraint("Block", 1))
sketch4.addConstraint(Sketcher.Constraint("Block", 2))
sketch4.addConstraint(Sketcher.Constraint("Block", 3))
sketch4.addConstraint(Sketcher.Constraint("Block", 4))
sketch4.addConstraint(Sketcher.Constraint("Block", 5))
sketch4.addConstraint(Sketcher.Constraint("Block", 6))
sketch4.addConstraint(Sketcher.Constraint("Block", 7))
sketch4.addConstraint(Sketcher.Constraint("Block", 8))
sketch4.addConstraint(Sketcher.Constraint("Block", 9))
sketch4.addConstraint(Sketcher.Constraint("Block", 11))
sketch4.addConstraint(Sketcher.Constraint("Block", 12))
sketch4.addConstraint(Sketcher.Constraint("Block", 13))
sketch4.addConstraint(Sketcher.Constraint("Block", 14))
sketch4.addConstraint(Sketcher.Constraint("Block", 15))
sketch4.addConstraint(Sketcher.Constraint("Block", 16))
sketch4.addConstraint(Sketcher.Constraint("Block", 17))
sketch4.addConstraint(Sketcher.Constraint("Block", 18))
sketch4.addConstraint(Sketcher.Constraint("Block", 19))
sketch4.addConstraint(Sketcher.Constraint("Block", 20))
sketch4.addConstraint(Sketcher.Constraint("Block", 21))
sketch4.addConstraint(Sketcher.Constraint("Block", 22))
sketch4.addConstraint(Sketcher.Constraint("Block", 24))
sketch4.addConstraint(Sketcher.Constraint("Block", 26))
sketch4.addConstraint(Sketcher.Constraint("Block", 28))
sketch4.addConstraint(Sketcher.Constraint("Block", 29))
sketch4.addConstraint(Sketcher.Constraint("Block", 30))
sketch4.addConstraint(Sketcher.Constraint("Block", 31))
sketch4.addConstraint(Sketcher.Constraint("Block", 32))
sketch4.addConstraint(Sketcher.Constraint("Block", 33))
sketch4.addConstraint(Sketcher.Constraint("Block", 35))
sketch4.addConstraint(Sketcher.Constraint("Block", 36))
sketch4.addConstraint(Sketcher.Constraint("Block", 37))
sketch4.addConstraint(Sketcher.Constraint("Block", 39))
sketch4.addConstraint(Sketcher.Constraint("Block", 40))
sketch4.addConstraint(Sketcher.Constraint("Block", 41))
sketch4.addConstraint(Sketcher.Constraint("Block", 42))
sketch4.addConstraint(Sketcher.Constraint("Block", 43))
sketch4.addConstraint(Sketcher.Constraint("Block", 44))
sketch4.addConstraint(Sketcher.Constraint("Block", 45))
sketch4.addConstraint(Sketcher.Constraint("Coincident", 0, 2, 1, 1))
sketch4.addConstraint(Sketcher.Constraint("Coincident", 9, 2, 10, 1))
sketch4.addConstraint(Sketcher.Constraint("Coincident", 10, 2, 11, 1))
sketch4.addConstraint(Sketcher.Constraint("Coincident", 22, 2, 23, 1))
sketch4.addConstraint(Sketcher.Constraint("Coincident", 23, 2, 24, 1))
sketch4.addConstraint(Sketcher.Constraint("Coincident", 24, 2, 25, 1))
sketch4.addConstraint(Sketcher.Constraint("Coincident", 25, 2, 26, 1))
sketch4.addConstraint(Sketcher.Constraint("Coincident", 26, 2, 27, 1))
sketch4.addConstraint(Sketcher.Constraint("Coincident", 27, 2, 28, 1))
sketch4.addConstraint(Sketcher.Constraint("Coincident", 33, 2, 34, 1))
sketch4.addConstraint(Sketcher.Constraint("Coincident", 34, 2, 35, 1))
sketch4.addConstraint(Sketcher.Constraint("Coincident", 37, 2, 38, 1))
sketch4.addConstraint(Sketcher.Constraint("Coincident", 38, 2, 39, 1))
sketch4.addConstraint(Sketcher.Constraint("Coincident", 45, 2, 0, 1))
pocket2 = body.newObject("PartDesign::Pocket", "Pocket001")
pocket2.Profile = sketch4
pocket2.Length = Q("0.025 in")
pocket2.Reversed = True

# Sketch on XY plane
sketch5 = body.newObject("Sketcher::SketchObject", "Sketch004")
sketch5.AttachmentSupport = (doc.getObject("XY_Plane"), [""])
sketch5.MapMode = "FlatFace"
sketch5.AttachmentOffset = App.Placement(Vector(0, 0, 0.1 * 25.4), App.Rotation())
sketch5.addGeometry(Part.Circle(Vector(1.531741, 0.496601, 0), Vector(0, 0, 1), 3.175), False)
sketch5.addConstraint(Sketcher.Constraint("Diameter", 0, Q("0.25 in")))
sketch5.addConstraint(Sketcher.Constraint("DistanceY", -1, 1, 0, 3, Q("0.496601 mm")))
sketch5.addConstraint(Sketcher.Constraint("DistanceX", -1, 1, 0, 3, Q("1.531741 mm")))
pocket3 = body.newObject("PartDesign::Pocket", "Pocket002")
pocket3.Profile = sketch5
pocket3.Length = Q("0.2 in")

# Sketch on XY plane
sketch6 = body.newObject("Sketcher::SketchObject", "Sketch005")
sketch6.AttachmentSupport = (doc.getObject("XY_Plane"), [""])
sketch6.MapMode = "FlatFace"
sketch6.AttachmentOffset = App.Placement(Vector(0, 0, 0.1 * 25.4), App.Rotation())
add_polygon(sketch6, [(-63.5, 9.521121), (-63.5, -4.813769), (-45.271635, -4.813769), (-45.271635, 9.521121)])  # lines 0-3
add_polygon(sketch6, [(45.271635, 9.521121), (45.271635, -4.813769), (63.318852, -4.813769), (63.318852, 9.521121)])  # lines 4-7
sketch6.addConstraint(Sketcher.Constraint("Vertical", 0))
sketch6.addConstraint(Sketcher.Constraint("Horizontal", 1))
sketch6.addConstraint(Sketcher.Constraint("Vertical", 2))
sketch6.addConstraint(Sketcher.Constraint("Horizontal", 3))
sketch6.addConstraint(Sketcher.Constraint("Vertical", 4))
sketch6.addConstraint(Sketcher.Constraint("Horizontal", 5))
sketch6.addConstraint(Sketcher.Constraint("Vertical", 6))
sketch6.addConstraint(Sketcher.Constraint("Horizontal", 7))
sketch6.addConstraint(Sketcher.Constraint("Symmetric", 1, 2, 4, 2, -2))
sketch6.addConstraint(Sketcher.Constraint("Horizontal", 3, 2, 6, 2))
sketch6.addConstraint(Sketcher.Constraint("DistanceX", 0, 2, -1, 1, Q("2.5 in")))
sketch6.addConstraint(Sketcher.Constraint("DistanceY", 0, 2, 0, 1, Q("14.33489 mm")))
sketch6.addConstraint(Sketcher.Constraint("DistanceX", 1, 1, 1, 2, Q("18.228365 mm")))
sketch6.addConstraint(Sketcher.Constraint("DistanceX", 5, 1, 5, 2, Q("18.047217 mm")))
sketch6.addConstraint(Sketcher.Constraint("DistanceY", 0, 2, -1, 1, Q("4.813769 mm")))
pad3 = body.newObject("PartDesign::Pad", "Pad002")
pad3.Profile = sketch6
pad3.Length = 5.05
doc.recompute()

fillet = body.newObject("PartDesign::Fillet", "Fillet")
fillet.Base = (pad3, edges_at(pad3, [
    (-54.386, -4.814, 7.59),
    (-54.386, 9.521, 7.59),
    (-63.5, 2.354, 7.59),
    (63.319, 2.354, 7.59),
    (54.295, 9.521, 7.59),
    (54.295, -4.814, 7.59),
]))
fillet.Radius = Q("0.05 in")

doc.recompute()
